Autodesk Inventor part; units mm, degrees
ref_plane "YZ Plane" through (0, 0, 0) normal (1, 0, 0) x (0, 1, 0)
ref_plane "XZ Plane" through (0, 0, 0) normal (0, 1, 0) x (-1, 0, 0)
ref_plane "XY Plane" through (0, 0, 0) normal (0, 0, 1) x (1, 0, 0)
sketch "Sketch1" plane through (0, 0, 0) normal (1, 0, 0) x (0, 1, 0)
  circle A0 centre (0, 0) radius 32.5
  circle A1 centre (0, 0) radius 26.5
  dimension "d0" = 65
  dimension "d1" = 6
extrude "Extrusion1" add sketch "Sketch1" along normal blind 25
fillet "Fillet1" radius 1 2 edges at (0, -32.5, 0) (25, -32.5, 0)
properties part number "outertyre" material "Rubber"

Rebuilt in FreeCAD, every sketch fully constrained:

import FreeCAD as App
import Part
import Sketcher

V = App.Vector


def edges_at(feature, points):
    """Names of the edges that pass closest to the given points."""
    edges = feature.Shape.Edges
    near = lambda p: min(range(len(edges)), key=lambda i: edges[i].distToShape(Part.Vertex(*p))[0])
    return sorted({f"Edge{near(p) + 1}" for p in points})

doc = App.newDocument("Part")
body = doc.addObject("PartDesign::Body", "Body")

sketch1 = body.newObject("Sketcher::SketchObject", "Sketch")
sketch1.AttachmentSupport = (doc.getObject("YZ_Plane"), [""])
sketch1.MapMode = "FlatFace"
sketch1.addGeometry([
    Part.Circle(V(0, 0, 0), V(0, 0, 1), 32),
    Part.Circle(V(0, 0, 0), V(0, 0, 1), 26),
], False)
sketch1.addConstraint([
    Sketcher.Constraint("Coincident", 0, 3, -1, 1),
    Sketcher.Constraint("Coincident", 1, 3, -1, 1),
    Sketcher.Constraint("Diameter", 0, 65.0),
    Sketcher.Constraint("Diameter", 1, 53.0),
])
pad1 = body.newObject("PartDesign::Pad", "Pad")
pad1.Profile = sketch1
pad1.Length = 25
doc.recompute()

fillet = body.newObject("PartDesign::Fillet", "Fillet")
fillet.Base = (pad1, edges_at(pad1, [(0, -32.5, 0), (25, -32.5, 0)]))
fillet.Radius = 1

doc.recompute()
